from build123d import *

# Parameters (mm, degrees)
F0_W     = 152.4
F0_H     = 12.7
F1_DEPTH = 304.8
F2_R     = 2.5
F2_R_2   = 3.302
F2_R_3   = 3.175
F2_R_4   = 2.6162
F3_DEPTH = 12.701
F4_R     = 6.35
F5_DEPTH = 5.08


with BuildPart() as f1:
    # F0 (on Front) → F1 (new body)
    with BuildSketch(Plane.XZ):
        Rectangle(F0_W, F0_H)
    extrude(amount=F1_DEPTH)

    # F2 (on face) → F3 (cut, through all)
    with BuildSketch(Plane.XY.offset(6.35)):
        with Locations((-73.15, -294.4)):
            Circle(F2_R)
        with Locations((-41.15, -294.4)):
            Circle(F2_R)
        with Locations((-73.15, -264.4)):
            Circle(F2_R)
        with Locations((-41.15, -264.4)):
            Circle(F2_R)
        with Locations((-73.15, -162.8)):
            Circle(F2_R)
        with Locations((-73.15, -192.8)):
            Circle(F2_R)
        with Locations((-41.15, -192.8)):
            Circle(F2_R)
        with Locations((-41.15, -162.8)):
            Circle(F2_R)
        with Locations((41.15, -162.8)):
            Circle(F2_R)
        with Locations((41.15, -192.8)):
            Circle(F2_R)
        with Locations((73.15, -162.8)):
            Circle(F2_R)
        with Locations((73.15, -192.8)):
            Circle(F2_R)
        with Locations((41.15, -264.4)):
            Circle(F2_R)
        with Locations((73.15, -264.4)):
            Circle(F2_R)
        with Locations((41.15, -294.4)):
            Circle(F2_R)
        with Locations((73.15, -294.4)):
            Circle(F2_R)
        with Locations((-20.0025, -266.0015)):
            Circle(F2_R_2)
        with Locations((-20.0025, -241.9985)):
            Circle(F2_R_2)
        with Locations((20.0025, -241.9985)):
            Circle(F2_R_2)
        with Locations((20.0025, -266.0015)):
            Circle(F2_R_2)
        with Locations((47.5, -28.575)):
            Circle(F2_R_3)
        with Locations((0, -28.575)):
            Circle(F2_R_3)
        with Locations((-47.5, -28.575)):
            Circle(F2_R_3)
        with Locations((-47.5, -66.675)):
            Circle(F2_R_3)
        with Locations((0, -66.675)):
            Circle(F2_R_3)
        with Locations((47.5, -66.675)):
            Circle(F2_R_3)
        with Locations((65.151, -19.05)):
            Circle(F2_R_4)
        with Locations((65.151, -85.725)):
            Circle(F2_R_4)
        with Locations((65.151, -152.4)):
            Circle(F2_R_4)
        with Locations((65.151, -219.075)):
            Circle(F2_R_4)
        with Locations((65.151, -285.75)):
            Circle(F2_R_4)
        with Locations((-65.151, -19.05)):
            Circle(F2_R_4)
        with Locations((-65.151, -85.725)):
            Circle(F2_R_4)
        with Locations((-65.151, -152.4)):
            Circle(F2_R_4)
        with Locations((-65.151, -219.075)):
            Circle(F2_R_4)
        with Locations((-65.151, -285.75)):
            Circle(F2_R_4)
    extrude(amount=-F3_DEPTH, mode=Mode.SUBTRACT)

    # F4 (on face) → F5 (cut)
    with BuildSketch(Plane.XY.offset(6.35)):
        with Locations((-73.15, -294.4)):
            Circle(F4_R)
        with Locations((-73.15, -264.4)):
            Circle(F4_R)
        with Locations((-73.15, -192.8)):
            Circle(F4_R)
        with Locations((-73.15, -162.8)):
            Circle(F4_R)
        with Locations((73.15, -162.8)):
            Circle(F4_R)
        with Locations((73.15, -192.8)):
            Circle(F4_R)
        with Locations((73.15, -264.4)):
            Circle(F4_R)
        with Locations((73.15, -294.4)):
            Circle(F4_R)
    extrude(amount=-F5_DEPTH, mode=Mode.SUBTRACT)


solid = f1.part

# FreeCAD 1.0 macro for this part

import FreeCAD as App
import Part
import Sketcher
Q = App.Units.Quantity

doc = App.newDocument("Part")
body = doc.addObject("PartDesign::Body", "Body")

# Sketch on XZ plane
sketch1 = doc.addObject("Sketcher::SketchObject", "Sketch")
body.addObject(sketch1)
sketch1.AttachmentSupport = (doc.XZ_Plane, [""])
sketch1.MapMode = "FlatFace"
sketch1.addGeometry([
    Part.LineSegment(App.Vector(-76.2, 6.35, 0), App.Vector(-76.2, -6.35, 0)),
    Part.LineSegment(App.Vector(-76.2, -6.35, 0), App.Vector(76.2, -6.35, 0)),
    Part.LineSegment(App.Vector(76.2, -6.35, 0), App.Vector(76.2, 6.35, 0)),
    Part.LineSegment(App.Vector(76.2, 6.35, 0), App.Vector(-76.2, 6.35, 0)),
], False)
sketch1.addConstraint([
    Sketcher.Constraint("Coincident", 0, 2, 1, 1),
    Sketcher.Constraint("Coincident", 1, 2, 2, 1),
    Sketcher.Constraint("Coincident", 2, 2, 3, 1),
    Sketcher.Constraint("Coincident", 3, 2, 0, 1),
    Sketcher.Constraint("Vertical", 0),
    Sketcher.Constraint("Horizontal", 1),
    Sketcher.Constraint("Vertical", 2),
    Sketcher.Constraint("Horizontal", 3),
    Sketcher.Constraint("Symmetric", 0, 2, 2, 2, -1, 1),
    Sketcher.Constraint("DistanceX", 1, 1, 1, 2, Q("6 in")),
    Sketcher.Constraint("DistanceY", 0, 2, 0, 1, Q("0.5 in")),
])
pad1 = doc.addObject("PartDesign::Pad", "Pad")
body.addObject(pad1)
pad1.Profile = sketch1
pad1.Length = Q("12 in")

# Sketch on XY plane
sketch2 = doc.addObject("Sketcher::SketchObject", "Sketch001")
body.addObject(sketch2)
sketch2.AttachmentSupport = (doc.XY_Plane, [""])
sketch2.MapMode = "FlatFace"
sketch2.AttachmentOffset = App.Placement(App.Vector(0, 0, 0.25 * 25.4), App.Rotation())
sketch2.addGeometry([
    Part.Circle(App.Vector(-73.15, -294.4, 0), App.Vector(0, 0, 1), 2.5),  # 0
    Part.Circle(App.Vector(-41.15, -294.4, 0), App.Vector(0, 0, 1), 2.5),  # 1
    Part.Circle(App.Vector(-73.15, -264.4, 0), App.Vector(0, 0, 1), 2.5),  # 2
    Part.Circle(App.Vector(-41.15, -264.4, 0), App.Vector(0, 0, 1), 2.5),  # 3
    Part.Circle(App.Vector(-73.15, -162.8, 0), App.Vector(0, 0, 1), 2.5),  # 4
    Part.Circle(App.Vector(-73.15, -192.8, 0), App.Vector(0, 0, 1), 2.5),  # 5
    Part.Circle(App.Vector(-41.15, -192.8, 0), App.Vector(0, 0, 1), 2.5),  # 6
    Part.Circle(App.Vector(-41.15, -162.8, 0), App.Vector(0, 0, 1), 2.5),  # 7
    Part.Circle(App.Vector(41.15, -162.8, 0), App.Vector(0, 0, 1), 2.5),  # 8
    Part.Circle(App.Vector(41.15, -192.8, 0), App.Vector(0, 0, 1), 2.5),  # 9
    Part.Circle(App.Vector(73.15, -162.8, 0), App.Vector(0, 0, 1), 2.5),  # 10
    Part.Circle(App.Vector(73.15, -192.8, 0), App.Vector(0, 0, 1), 2.5),  # 11
    Part.Circle(App.Vector(41.15, -264.4, 0), App.Vector(0, 0, 1), 2.5),  # 12
    Part.Circle(App.Vector(73.15, -264.4, 0), App.Vector(0, 0, 1), 2.5),  # 13
    Part.Circle(App.Vector(41.15, -294.4, 0), App.Vector(0, 0, 1), 2.5),  # 14
    Part.Circle(App.Vector(73.15, -294.4, 0), App.Vector(0, 0, 1), 2.5),  # 15
    Part.Circle(App.Vector(-20.0025, -266.0015, 0), App.Vector(0, 0, 1), 3.302),  # 16
    Part.Circle(App.Vector(-20.0025, -241.9985, 0), App.Vector(0, 0, 1), 3.302),  # 17
    Part.Circle(App.Vector(20.0025, -241.9985, 0), App.Vector(0, 0, 1), 3.302),  # 18
    Part.Circle(App.Vector(20.0025, -266.0015, 0), App.Vector(0, 0, 1), 3.302),  # 19
    Part.Circle(App.Vector(47.5, -28.575, 0), App.Vector(0, 0, 1), 3.175),  # 20
    Part.Circle(App.Vector(0, -28.575, 0), App.Vector(0, 0, 1), 3.175),  # 21
    Part.Circle(App.Vector(-47.5, -28.575, 0), App.Vector(0, 0, 1), 3.175),  # 22
    Part.Circle(App.Vector(-47.5, -66.675, 0), App.Vector(0, 0, 1), 3.175),  # 23
    Part.Circle(App.Vector(0, -66.675, 0), App.Vector(0, 0, 1), 3.175),  # 24
    Part.Circle(App.Vector(47.5, -66.675, 0), App.Vector(0, 0, 1), 3.175),  # 25
    Part.Circle(App.Vector(65.151, -19.05, 0), App.Vector(0, 0, 1), 2.6162),  # 26
    Part.Circle(App.Vector(65.151, -85.725, 0), App.Vector(0, 0, 1), 2.6162),  # 27
    Part.Circle(App.Vector(65.151, -152.4, 0), App.Vector(0, 0, 1), 2.6162),  # 28
    Part.Circle(App.Vector(65.151, -219.075, 0), App.Vector(0, 0, 1), 2.6162),  # 29
    Part.Circle(App.Vector(65.151, -285.75, 0), App.Vector(0, 0, 1), 2.6162),  # 30
    Part.Circle(App.Vector(-65.151, -19.05, 0), App.Vector(0, 0, 1), 2.6162),  # 31
    Part.Circle(App.Vector(-65.151, -85.725, 0), App.Vector(0, 0, 1), 2.6162),  # 32
    Part.Circle(App.Vector(-65.151, -152.4, 0), App.Vector(0, 0, 1), 2.6162),  # 33
    Part.Circle(App.Vector(-65.151, -219.075, 0), App.Vector(0, 0, 1), 2.6162),  # 34
    Part.Circle(App.Vector(-65.151, -285.75, 0), App.Vector(0, 0, 1), 2.6162),  # 35
], False)
sketch2.addConstraint([
    Sketcher.Constraint("Equal", 0, 1),
    Sketcher.Constraint("Equal", 1, 2),
    Sketcher.Constraint("Equal", 2, 3),
    Sketcher.Constraint("Equal", 3, 4),
    Sketcher.Constraint("Equal", 4, 5),
    Sketcher.Constraint("Equal", 5, 6),
    Sketcher.Constraint("Equal", 6, 7),
    Sketcher.Constraint("Equal", 7, 8),
    Sketcher.Constraint("Equal", 8, 9),
    Sketcher.Constraint("Equal", 9, 10),
    Sketcher.Constraint("Equal", 10, 11),
    Sketcher.Constraint("Equal", 11, 12),
    Sketcher.Constraint("Equal", 12, 13),
    Sketcher.Constraint("Equal", 13, 14),
    Sketcher.Constraint("Equal", 14, 15),
    Sketcher.Constraint("Equal", 16, 17),
    Sketcher.Constraint("Equal", 17, 18),
    Sketcher.Constraint("Equal", 18, 19),
    Sketcher.Constraint("Equal", 20, 21),
    Sketcher.Constraint("Equal", 21, 22),
    Sketcher.Constraint("Equal", 22, 23),
    Sketcher.Constraint("Equal", 23, 24),
    Sketcher.Constraint("Equal", 24, 25),
    Sketcher.Constraint("Equal", 26, 27),
    Sketcher.Constraint("Equal", 27, 28),
    Sketcher.Constraint("Equal", 28, 29),
    Sketcher.Constraint("Equal", 29, 30),
    Sketcher.Constraint("Equal", 30, 31),
    Sketcher.Constraint("Equal", 31, 32),
    Sketcher.Constraint("Equal", 32, 33),
    Sketcher.Constraint("Equal", 33, 34),
    Sketcher.Constraint("Equal", 34, 35),
    Sketcher.Constraint("Symmetric", 7, 3, 8, 3, -2),
    Sketcher.Constraint("Symmetric", 6, 3, 9, 3, -2),
    Sketcher.Constraint("Symmetric", 4, 3, 10, 3, -2),
    Sketcher.Constraint("Symmetric", 5, 3, 11, 3, -2),
    Sketcher.Constraint("Symmetric", 3, 3, 12, 3, -2),
    Sketcher.Constraint("Symmetric", 2, 3, 13, 3, -2),
    Sketcher.Constraint("Symmetric", 1, 3, 14, 3, -2),
    Sketcher.Constraint("Symmetric", 0, 3, 15, 3, -2),
    Sketcher.Constraint("Symmetric", 17, 3, 18, 3, -2),
    Sketcher.Constraint("Symmetric", 16, 3, 19, 3, -2),
    Sketcher.Constraint("Symmetric", 20, 3, 22, 3, -2),
    Sketcher.Constraint("Symmetric", 23, 3, 25, 3, -2),
    Sketcher.Constraint("Symmetric", 26, 3, 31, 3, -2),
    Sketcher.Constraint("Symmetric", 27, 3, 32, 3, -2),
    Sketcher.Constraint("Symmetric", 28, 3, 33, 3, -2),
    Sketcher.Constraint("Symmetric", 29, 3, 34, 3, -2),
    Sketcher.Constraint("Symmetric", 30, 3, 35, 3, -2),
    Sketcher.Constraint("PointOnObject", 21, 3, -2),
    Sketcher.Constraint("PointOnObject", 24, 3, -2),
    Sketcher.Constraint("Horizontal", 0, 3, 1, 3),
    Sketcher.Constraint("Horizontal", 2, 3, 3, 3),
    Sketcher.Constraint("Horizontal", 5, 3, 6, 3),
    Sketcher.Constraint("Horizontal", 4, 3, 7, 3),
    Sketcher.Constraint("Horizontal", 20, 3, 21, 3),
    Sketcher.Constraint("Horizontal", 23, 3, 24, 3),
    Sketcher.Constraint("Vertical", 0, 3, 2, 3),
    Sketcher.Constraint("Vertical", 1, 3, 3, 3),
    Sketcher.Constraint("Vertical", 2, 3, 4, 3),
    Sketcher.Constraint("Vertical", 4, 3, 5, 3),
    Sketcher.Constraint("Vertical", 3, 3, 6, 3),
    Sketcher.Constraint("Vertical", 6, 3, 7, 3),
    Sketcher.Constraint("Vertical", 16, 3, 17, 3),
    Sketcher.Constraint("Vertical", 22, 3, 23, 3),
    Sketcher.Constraint("Vertical", 26, 3, 27, 3),
    Sketcher.Constraint("Vertical", 27, 3, 28, 3),
    Sketcher.Constraint("Vertical", 28, 3, 29, 3),
    Sketcher.Constraint("Vertical", 29, 3, 30, 3),
    Sketcher.Constraint("Diameter", 16, Q("0.26 in")),
    Sketcher.Constraint("Diameter", 20, Q("0.25 in")),
    Sketcher.Constraint("Diameter", 26, Q("0.206 in")),
    Sketcher.Constraint("DistanceY", 28, 3, -1, 1, Q("6 in")),
    Sketcher.Constraint("DistanceY", 2, 3, 4, 3, Q("4 in")),
    Sketcher.Constraint("DistanceY", 0, 3, 5, 3, Q("4 in")),
    Sketcher.Constraint("DistanceX", 4, 3, 8, 3, Q("4.5 in")),
    Sketcher.Constraint("DistanceY", 23, 3, 22, 3, Q("1.5 in")),
    Sketcher.Constraint("Diameter", 0, Q("5 mm")),
    Sketcher.Constraint("DistanceY", 26, 3, -1, 1, Q("0.75 in")),
    Sketcher.Constraint("DistanceY", 30, 3, -1, 1, Q("11.25 in")),
    Sketcher.Constraint("DistanceX", 8, 3, 20, 3, Q("0.25 in")),
    Sketcher.Constraint("DistanceY", 27, 3, 25, 3, Q("0.75 in")),
    Sketcher.Constraint("DistanceY", 20, 3, -1, 1, Q("1.125 in")),
    Sketcher.Constraint("DistanceX", -1, 1, 26, 3, Q("2.565 in")),
    Sketcher.Constraint("DistanceY", 29, 3, -1, 1, Q("8.625 in")),
    Sketcher.Constraint("DistanceY", 16, 3, 17, 3, Q("0.945 in")),
    Sketcher.Constraint("DistanceX", 17, 3, 18, 3, Q("1.575 in")),
    Sketcher.Constraint("DistanceY", 16, 3, -1, 1, Q("10.4725 in")),
    Sketcher.Constraint("DistanceX", 0, 3, -1, 1, Q("73.15 mm")),
    Sketcher.Constraint("DistanceY", 0, 3, -1, 1, Q("294.4 mm")),
    Sketcher.Constraint("DistanceY", 2, 3, -1, 1, Q("264.4 mm")),
])
pocket1 = doc.addObject("PartDesign::Pocket", "Pocket")
body.addObject(pocket1)
pocket1.Profile = sketch2
pocket1.Type = "ThroughAll"

# Sketch on XY plane
sketch3 = doc.addObject("Sketcher::SketchObject", "Sketch002")
body.addObject(sketch3)
sketch3.AttachmentSupport = (doc.XY_Plane, [""])
sketch3.MapMode = "FlatFace"
sketch3.AttachmentOffset = App.Placement(App.Vector(0, 0, 0.25 * 25.4), App.Rotation())
sketch3.addGeometry([
    Part.Circle(App.Vector(-73.15, -294.4, 0), App.Vector(0, 0, 1), 6.35),  # 0
    Part.Circle(App.Vector(-73.15, -264.4, 0), App.Vector(0, 0, 1), 6.35),  # 1
    Part.Circle(App.Vector(-73.15, -192.8, 0), App.Vector(0, 0, 1), 6.35),  # 2
    Part.Circle(App.Vector(-73.15, -162.8, 0), App.Vector(0, 0, 1), 6.35),  # 3
    Part.Circle(App.Vector(73.15, -162.8, 0), App.Vector(0, 0, 1), 6.35),  # 4
    Part.Circle(App.Vector(73.15, -192.8, 0), App.Vector(0, 0, 1), 6.35),  # 5
    Part.Circle(App.Vector(73.15, -264.4, 0), App.Vector(0, 0, 1), 6.35),  # 6
    Part.Circle(App.Vector(73.15, -294.4, 0), App.Vector(0, 0, 1), 6.35),  # 7
], False)
sketch3.addConstraint([
    Sketcher.Constraint("Equal", 0, 1),
    Sketcher.Constraint("Equal", 1, 2),
    Sketcher.Constraint("Equal", 2, 3),
    Sketcher.Constraint("Equal", 3, 4),
    Sketcher.Constraint("Equal", 4, 5),
    Sketcher.Constraint("Equal", 5, 6),
    Sketcher.Constraint("Equal", 6, 7),
    Sketcher.Constraint("Symmetric", 3, 3, 4, 3, -2),
    Sketcher.Constraint("Symmetric", 2, 3, 5, 3, -2),
    Sketcher.Constraint("Symmetric", 1, 3, 6, 3, -2),
    Sketcher.Constraint("Symmetric", 0, 3, 7, 3, -2),
    Sketcher.Constraint("Vertical", 0, 3, 1, 3),
    Sketcher.Constraint("Vertical", 1, 3, 2, 3),
    Sketcher.Constraint("Vertical", 2, 3, 3, 3),
    Sketcher.Constraint("Diameter", 0, Q("0.5 in")),
    Sketcher.Constraint("DistanceY", 0, 3, 2, 3, Q("4 in")),
    Sketcher.Constraint("DistanceY", 1, 3, 3, 3, Q("4 in")),
    Sketcher.Constraint("DistanceX", 0, 3, -1, 1, Q("73.15 mm")),
    Sketcher.Constraint("DistanceY", 0, 3, -1, 1, Q("294.4 mm")),
    Sketcher.Constraint("DistanceY", 1, 3, -1, 1, Q("264.4 mm")),
])
pocket2 = doc.addObject("PartDesign::Pocket", "Pocket001")
body.addObject(pocket2)
pocket2.Profile = sketch3
pocket2.Length = Q("0.2 in")

doc.recompute()
